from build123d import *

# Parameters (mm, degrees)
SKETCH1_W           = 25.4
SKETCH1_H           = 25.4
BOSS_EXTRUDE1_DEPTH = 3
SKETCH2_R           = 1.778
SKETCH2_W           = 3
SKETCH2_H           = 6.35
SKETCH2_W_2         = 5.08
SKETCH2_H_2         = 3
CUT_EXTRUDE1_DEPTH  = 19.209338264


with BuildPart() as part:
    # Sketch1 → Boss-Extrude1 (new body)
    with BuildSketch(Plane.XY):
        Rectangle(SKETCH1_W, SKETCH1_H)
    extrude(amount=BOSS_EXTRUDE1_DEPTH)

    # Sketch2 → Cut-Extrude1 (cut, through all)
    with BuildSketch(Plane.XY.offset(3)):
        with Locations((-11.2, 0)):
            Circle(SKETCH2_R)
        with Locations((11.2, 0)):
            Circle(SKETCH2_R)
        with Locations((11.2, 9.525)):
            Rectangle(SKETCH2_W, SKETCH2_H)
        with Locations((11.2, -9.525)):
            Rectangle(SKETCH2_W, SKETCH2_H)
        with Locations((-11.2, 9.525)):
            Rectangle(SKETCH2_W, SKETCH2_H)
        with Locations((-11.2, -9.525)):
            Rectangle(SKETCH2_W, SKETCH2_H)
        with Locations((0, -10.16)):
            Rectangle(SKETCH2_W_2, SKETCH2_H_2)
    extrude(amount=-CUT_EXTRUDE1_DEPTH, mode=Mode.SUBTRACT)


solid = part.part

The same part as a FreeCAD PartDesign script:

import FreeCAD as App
import Part
import Sketcher
Q = App.Units.Quantity


def add_polygon(sketch, points):
    """Adds a closed chain of lines whose ends are joined by coincident constraints."""
    first, n = sketch.GeometryCount, len(points)
    for a, b in zip(points, points[1:] + points[:1]):
        sketch.addGeometry(Part.LineSegment(App.Vector(*a, 0), App.Vector(*b, 0)), False)
    for i in range(n):
        sketch.addConstraint(Sketcher.Constraint("Coincident", first + i, 2, first + (i + 1) % n, 1))

doc = App.newDocument("Part")
body = doc.addObject("PartDesign::Body", "Body")

# Sketch on XY plane
sketch1 = doc.addObject("Sketcher::SketchObject", "Sketch")
body.addObject(sketch1)
sketch1.AttachmentSupport = (doc.XY_Plane, [""])
sketch1.MapMode = "FlatFace"
add_polygon(sketch1, [(-13, 13), (-13, -13), (13, -13), (13, 13)])  # lines 0-3
sketch1.addConstraint([
    Sketcher.Constraint("Vertical", 0),
    Sketcher.Constraint("Horizontal", 1),
    Sketcher.Constraint("Vertical", 2),
    Sketcher.Constraint("Horizontal", 3),
    Sketcher.Constraint("Symmetric", 0, 2, 2, 2, -1, 1),
    Sketcher.Constraint("Equal", 3, 0),
    Sketcher.Constraint("DistanceX", 1, 1, 1, 2, Q("1 in")),
])
pad1 = doc.addObject("PartDesign::Pad", "Pad")
body.addObject(pad1)
pad1.Profile = sketch1
pad1.Length = 3

# Sketch on XY plane
sketch2 = doc.addObject("Sketcher::SketchObject", "Sketch001")
body.addObject(sketch2)
sketch2.AttachmentSupport = (doc.XY_Plane, [""])
sketch2.MapMode = "FlatFace"
sketch2.AttachmentOffset = App.Placement(App.Vector(0, 0, 3), App.Rotation())
sketch2.addGeometry(Part.Circle(App.Vector(-11.2, 0, 0), App.Vector(0, 0, 1), 1.8), False)  # 0
sketch2.addGeometry(Part.Circle(App.Vector(11.2, 0, 0), App.Vector(0, 0, 1), 1.8), False)  # 1
add_polygon(sketch2, [(9.7, 12.7), (9.7, 6.3), (12.7, 6.3), (12.7, 12.7)])  # lines 2-5
add_polygon(sketch2, [(9.7, -6.3), (9.7, -12.7), (12.7, -12.7), (12.7, -6.3)])  # lines 6-9
add_polygon(sketch2, [(-12.7, 12.7), (-12.7, 6.3), (-9.7, 6.3), (-9.7, 12.7)])  # lines 10-13
add_polygon(sketch2, [(-12.7, -6.3), (-12.7, -12.7), (-9.7, -12.7), (-9.7, -6.3)])  # lines 14-17
add_polygon(sketch2, [(-2.5, -8.7), (-2.5, -11.7), (2.5, -11.7), (2.5, -8.7)])  # lines 18-21
sketch2.addConstraint([
    Sketcher.Constraint("Vertical", 2),
    Sketcher.Constraint("Horizontal", 3),
    Sketcher.Constraint("Vertical", 4),
    Sketcher.Constraint("Horizontal", 5),
    Sketcher.Constraint("Vertical", 6),
    Sketcher.Constraint("Horizontal", 7),
    Sketcher.Constraint("Vertical", 8),
    Sketcher.Constraint("Horizontal", 9),
    Sketcher.Constraint("Vertical", 10),
    Sketcher.Constraint("Horizontal", 11),
    Sketcher.Constraint("Vertical", 12),
    Sketcher.Constraint("Horizontal", 13),
    Sketcher.Constraint("Vertical", 14),
    Sketcher.Constraint("Horizontal", 15),
    Sketcher.Constraint("Vertical", 16),
    Sketcher.Constraint("Horizontal", 17),
    Sketcher.Constraint("Vertical", 18),
    Sketcher.Constraint("Horizontal", 19),
    Sketcher.Constraint("Vertical", 20),
    Sketcher.Constraint("Horizontal", 21),
    Sketcher.Constraint("Equal", 0, 1),
    Sketcher.Constraint("Symmetric", 0, 3, 1, 3, -1, 1),
    Sketcher.Constraint("Symmetric", 8, 2, 10, 2, -1, 1),
    Sketcher.Constraint("Symmetric", 6, 2, 12, 2, -1, 1),
    Sketcher.Constraint("Symmetric", 4, 2, 14, 2, -1, 1),
    Sketcher.Constraint("Symmetric", 2, 2, 16, 2, -1, 1),
    Sketcher.Constraint("Symmetric", 3, 2, 10, 2, -2),
    Sketcher.Constraint("Symmetric", 5, 2, 12, 2, -2),
    Sketcher.Constraint("PointOnObject", 0, 3, -1),
    Sketcher.Constraint("Equal", 17, 18),
    Sketcher.Constraint("Diameter", 0, Q("0.14 in")),
    Sketcher.Constraint("DistanceX", 19, 1, 19, 2, Q("0.2 in")),
    Sketcher.Constraint("DistanceY", 6, 2, 5, 2, Q("1 in")),
    Sketcher.Constraint("DistanceX", 10, 2, 3, 2, Q("1 in")),
    Sketcher.Constraint("DistanceY", 2, 2, 2, 1, Q("0.25 in")),
    Sketcher.Constraint("DistanceX", 18, 2, -1, 1, Q("0.1 in")),
    Sketcher.Constraint("DistanceX", 3, 1, 3, 2, Q("3 mm")),
    Sketcher.Constraint("DistanceX", 0, 3, -1, 1, Q("11.2 mm")),
    Sketcher.Constraint("DistanceY", 18, 2, -1, 1, Q("11.66 mm")),
])
pocket1 = doc.addObject("PartDesign::Pocket", "Pocket")
body.addObject(pocket1)
pocket1.Profile = sketch2
pocket1.Type = "ThroughAll"

doc.recompute()
